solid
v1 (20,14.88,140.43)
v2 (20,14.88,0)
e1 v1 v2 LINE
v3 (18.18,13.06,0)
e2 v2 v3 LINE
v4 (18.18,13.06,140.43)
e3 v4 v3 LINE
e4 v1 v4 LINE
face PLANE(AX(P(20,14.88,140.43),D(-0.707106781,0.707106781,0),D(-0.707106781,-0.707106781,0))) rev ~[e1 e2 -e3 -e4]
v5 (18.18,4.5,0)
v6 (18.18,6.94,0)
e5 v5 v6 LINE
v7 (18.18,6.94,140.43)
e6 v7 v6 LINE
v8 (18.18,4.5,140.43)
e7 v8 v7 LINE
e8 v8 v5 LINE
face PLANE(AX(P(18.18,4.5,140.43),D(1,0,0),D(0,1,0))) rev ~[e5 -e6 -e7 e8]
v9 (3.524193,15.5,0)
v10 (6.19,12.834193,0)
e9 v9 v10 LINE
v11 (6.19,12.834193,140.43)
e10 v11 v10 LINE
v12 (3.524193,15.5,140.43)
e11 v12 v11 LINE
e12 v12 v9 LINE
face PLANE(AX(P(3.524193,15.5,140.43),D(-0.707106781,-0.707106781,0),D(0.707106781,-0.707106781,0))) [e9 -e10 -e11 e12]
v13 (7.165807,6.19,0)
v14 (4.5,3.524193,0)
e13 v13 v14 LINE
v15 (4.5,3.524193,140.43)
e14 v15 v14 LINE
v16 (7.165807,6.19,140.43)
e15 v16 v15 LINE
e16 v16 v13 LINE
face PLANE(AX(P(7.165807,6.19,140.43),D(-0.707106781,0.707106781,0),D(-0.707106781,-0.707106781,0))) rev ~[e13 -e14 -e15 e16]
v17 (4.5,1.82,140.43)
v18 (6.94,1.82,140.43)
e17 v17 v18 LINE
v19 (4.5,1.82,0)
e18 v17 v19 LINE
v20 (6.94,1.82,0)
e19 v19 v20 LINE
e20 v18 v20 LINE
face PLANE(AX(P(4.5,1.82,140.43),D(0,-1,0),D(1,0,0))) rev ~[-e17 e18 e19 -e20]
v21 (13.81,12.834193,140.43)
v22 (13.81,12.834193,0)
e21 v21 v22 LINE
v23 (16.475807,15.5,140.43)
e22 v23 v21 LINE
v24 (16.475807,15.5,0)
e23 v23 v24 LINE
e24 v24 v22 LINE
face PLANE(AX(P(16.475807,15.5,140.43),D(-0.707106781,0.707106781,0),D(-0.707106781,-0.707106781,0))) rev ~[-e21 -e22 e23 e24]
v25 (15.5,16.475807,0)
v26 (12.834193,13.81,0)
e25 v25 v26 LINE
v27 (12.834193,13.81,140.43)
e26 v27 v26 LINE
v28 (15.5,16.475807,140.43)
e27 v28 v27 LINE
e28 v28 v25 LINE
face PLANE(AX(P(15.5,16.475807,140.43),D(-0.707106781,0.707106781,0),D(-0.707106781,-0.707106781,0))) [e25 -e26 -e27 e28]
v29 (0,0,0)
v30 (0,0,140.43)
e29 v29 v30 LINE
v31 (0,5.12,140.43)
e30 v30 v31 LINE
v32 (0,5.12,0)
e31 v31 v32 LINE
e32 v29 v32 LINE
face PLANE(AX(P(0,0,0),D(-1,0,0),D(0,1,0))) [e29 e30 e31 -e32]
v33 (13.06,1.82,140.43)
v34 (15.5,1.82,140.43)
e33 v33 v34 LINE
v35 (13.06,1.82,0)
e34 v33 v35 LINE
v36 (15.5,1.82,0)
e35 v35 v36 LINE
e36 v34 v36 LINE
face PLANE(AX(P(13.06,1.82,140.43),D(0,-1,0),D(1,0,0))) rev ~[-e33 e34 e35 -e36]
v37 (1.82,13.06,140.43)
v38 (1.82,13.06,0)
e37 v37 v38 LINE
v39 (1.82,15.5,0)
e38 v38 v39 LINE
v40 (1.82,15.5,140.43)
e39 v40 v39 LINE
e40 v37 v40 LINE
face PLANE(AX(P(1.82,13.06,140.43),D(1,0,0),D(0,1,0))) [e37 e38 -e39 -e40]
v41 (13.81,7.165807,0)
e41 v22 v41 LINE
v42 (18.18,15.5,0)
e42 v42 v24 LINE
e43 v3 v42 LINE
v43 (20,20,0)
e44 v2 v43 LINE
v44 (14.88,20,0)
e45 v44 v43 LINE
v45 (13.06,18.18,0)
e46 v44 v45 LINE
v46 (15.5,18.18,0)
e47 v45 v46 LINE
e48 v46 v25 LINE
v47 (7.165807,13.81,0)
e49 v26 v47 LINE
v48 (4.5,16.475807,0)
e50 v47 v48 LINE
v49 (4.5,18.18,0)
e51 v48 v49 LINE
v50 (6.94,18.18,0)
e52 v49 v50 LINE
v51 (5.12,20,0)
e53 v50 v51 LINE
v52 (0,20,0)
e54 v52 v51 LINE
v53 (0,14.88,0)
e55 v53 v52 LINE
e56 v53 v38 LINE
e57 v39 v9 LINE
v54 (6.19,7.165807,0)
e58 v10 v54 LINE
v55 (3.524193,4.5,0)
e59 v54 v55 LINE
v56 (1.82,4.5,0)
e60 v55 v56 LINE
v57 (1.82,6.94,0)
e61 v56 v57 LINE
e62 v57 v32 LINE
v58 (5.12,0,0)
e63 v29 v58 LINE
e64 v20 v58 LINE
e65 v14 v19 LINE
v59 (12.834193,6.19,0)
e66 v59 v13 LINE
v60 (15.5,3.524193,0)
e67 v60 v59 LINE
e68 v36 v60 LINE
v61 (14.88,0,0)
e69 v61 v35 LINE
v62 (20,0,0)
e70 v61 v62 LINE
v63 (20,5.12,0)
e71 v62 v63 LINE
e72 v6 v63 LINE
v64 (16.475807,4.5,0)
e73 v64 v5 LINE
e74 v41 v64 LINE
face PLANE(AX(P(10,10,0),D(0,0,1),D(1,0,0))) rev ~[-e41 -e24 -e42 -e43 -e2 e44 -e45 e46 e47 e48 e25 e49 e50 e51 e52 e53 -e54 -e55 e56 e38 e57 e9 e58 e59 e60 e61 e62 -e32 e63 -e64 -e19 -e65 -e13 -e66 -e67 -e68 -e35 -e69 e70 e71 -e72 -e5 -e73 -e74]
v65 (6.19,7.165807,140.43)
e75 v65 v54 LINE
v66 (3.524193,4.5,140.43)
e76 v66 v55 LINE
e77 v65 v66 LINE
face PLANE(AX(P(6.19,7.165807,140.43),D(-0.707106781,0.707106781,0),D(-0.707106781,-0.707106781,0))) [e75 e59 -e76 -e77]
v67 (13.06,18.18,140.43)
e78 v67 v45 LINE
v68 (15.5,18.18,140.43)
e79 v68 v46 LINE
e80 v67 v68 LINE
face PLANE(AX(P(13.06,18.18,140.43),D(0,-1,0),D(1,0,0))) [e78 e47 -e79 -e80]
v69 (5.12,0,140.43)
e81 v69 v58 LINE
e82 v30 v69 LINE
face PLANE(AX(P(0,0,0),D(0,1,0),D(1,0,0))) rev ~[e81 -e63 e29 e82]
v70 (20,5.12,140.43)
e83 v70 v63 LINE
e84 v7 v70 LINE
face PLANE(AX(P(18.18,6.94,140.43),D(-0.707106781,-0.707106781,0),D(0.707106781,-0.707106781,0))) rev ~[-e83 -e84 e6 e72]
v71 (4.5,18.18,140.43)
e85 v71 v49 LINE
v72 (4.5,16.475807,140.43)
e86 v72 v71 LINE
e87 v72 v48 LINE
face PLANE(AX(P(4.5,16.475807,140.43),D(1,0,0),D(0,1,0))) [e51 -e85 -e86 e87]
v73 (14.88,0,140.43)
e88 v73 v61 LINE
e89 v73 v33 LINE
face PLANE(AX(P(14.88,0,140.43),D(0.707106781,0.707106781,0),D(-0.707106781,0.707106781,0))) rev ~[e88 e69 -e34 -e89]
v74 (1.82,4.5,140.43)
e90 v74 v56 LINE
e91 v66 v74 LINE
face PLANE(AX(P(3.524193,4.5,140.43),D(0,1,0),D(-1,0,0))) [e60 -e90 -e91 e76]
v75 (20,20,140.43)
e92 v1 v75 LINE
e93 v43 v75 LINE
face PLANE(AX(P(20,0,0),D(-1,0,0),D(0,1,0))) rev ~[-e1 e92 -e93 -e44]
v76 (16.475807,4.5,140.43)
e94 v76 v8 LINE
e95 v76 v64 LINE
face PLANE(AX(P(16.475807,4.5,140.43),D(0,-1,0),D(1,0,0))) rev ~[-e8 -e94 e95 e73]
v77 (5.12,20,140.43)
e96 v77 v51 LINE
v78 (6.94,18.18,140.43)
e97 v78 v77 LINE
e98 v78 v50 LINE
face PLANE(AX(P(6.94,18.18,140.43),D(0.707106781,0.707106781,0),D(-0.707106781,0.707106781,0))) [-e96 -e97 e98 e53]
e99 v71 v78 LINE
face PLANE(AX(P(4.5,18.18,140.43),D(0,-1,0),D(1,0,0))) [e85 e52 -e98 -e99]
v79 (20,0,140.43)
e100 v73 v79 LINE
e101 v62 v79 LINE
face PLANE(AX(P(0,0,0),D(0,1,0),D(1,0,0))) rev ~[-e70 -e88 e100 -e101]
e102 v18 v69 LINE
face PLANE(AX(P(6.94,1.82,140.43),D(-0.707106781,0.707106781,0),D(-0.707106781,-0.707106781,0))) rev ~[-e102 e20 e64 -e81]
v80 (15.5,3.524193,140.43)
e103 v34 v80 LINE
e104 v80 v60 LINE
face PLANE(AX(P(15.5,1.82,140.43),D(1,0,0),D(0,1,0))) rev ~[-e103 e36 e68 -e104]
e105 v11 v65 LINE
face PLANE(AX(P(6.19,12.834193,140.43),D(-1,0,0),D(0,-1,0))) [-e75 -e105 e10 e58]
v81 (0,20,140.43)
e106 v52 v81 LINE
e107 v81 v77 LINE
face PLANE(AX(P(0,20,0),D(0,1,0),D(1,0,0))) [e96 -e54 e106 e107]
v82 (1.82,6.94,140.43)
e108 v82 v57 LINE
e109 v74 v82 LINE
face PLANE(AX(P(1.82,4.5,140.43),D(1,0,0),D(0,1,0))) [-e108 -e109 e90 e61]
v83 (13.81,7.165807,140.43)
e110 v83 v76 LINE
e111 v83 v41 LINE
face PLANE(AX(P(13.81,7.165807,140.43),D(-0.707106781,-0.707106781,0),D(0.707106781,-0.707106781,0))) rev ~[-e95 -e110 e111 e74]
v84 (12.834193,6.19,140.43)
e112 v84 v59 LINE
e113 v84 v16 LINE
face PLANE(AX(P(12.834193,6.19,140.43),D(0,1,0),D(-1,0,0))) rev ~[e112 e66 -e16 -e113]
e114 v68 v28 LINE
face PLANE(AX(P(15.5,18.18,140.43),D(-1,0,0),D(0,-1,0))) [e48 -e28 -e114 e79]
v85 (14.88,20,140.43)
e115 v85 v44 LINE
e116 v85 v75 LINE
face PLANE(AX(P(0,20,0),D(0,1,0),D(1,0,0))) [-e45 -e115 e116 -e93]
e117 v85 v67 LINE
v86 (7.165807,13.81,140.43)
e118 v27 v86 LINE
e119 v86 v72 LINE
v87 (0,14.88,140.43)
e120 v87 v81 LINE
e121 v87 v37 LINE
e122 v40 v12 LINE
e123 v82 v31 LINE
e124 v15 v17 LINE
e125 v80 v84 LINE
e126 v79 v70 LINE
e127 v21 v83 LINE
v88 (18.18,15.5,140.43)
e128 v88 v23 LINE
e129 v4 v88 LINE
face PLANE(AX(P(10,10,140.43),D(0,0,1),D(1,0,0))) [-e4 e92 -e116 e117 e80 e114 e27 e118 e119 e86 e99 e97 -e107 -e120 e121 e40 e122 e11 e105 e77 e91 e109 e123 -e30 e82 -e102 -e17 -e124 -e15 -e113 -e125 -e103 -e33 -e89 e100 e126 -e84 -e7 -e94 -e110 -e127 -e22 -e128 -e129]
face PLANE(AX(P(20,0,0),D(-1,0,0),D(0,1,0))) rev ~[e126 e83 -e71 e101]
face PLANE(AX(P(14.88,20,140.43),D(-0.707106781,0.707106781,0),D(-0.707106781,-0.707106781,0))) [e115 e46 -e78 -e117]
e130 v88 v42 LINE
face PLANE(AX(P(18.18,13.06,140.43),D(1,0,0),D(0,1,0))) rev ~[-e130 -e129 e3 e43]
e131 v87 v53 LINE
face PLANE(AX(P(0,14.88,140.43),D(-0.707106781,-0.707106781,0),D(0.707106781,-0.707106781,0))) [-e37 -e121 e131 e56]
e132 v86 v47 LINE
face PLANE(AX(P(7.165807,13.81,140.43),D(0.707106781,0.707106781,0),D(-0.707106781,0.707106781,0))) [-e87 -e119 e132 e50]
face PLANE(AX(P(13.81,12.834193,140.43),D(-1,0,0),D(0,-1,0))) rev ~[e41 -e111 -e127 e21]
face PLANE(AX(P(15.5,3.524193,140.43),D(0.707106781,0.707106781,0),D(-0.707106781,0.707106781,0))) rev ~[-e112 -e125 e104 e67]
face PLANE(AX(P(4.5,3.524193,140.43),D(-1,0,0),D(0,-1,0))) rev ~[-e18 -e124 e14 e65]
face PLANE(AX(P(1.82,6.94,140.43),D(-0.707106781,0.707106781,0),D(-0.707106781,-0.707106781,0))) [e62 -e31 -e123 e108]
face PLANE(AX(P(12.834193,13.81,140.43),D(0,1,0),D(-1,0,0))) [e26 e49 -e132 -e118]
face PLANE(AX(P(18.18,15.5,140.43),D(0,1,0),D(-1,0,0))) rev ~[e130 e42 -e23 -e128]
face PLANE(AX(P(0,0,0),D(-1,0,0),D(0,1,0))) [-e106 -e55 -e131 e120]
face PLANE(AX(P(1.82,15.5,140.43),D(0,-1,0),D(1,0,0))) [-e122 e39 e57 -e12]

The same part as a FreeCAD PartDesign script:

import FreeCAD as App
import Part
import Sketcher

V = App.Vector


def add_polygon(sketch, points):
    """Adds a closed chain of lines whose ends are joined by coincident constraints."""
    first, n = sketch.GeometryCount, len(points)
    for a, b in zip(points, points[1:] + points[:1]):
        sketch.addGeometry(Part.LineSegment(App.Vector(*a, 0), App.Vector(*b, 0)), False)
    for i in range(n):
        sketch.addConstraint(Sketcher.Constraint("Coincident", first + i, 2, first + (i + 1) % n, 1))

doc = App.newDocument("Part")
body = doc.addObject("PartDesign::Body", "Body")

# Sketch on XY plane
sketch1 = doc.addObject("Sketcher::SketchObject", "Sketch")
body.addObject(sketch1)
sketch1.AttachmentSupport = (doc.XY_Plane, [""])
sketch1.MapMode = "FlatFace"
add_polygon(sketch1, [(0, 20), (0, 0), (20, 0), (20, 20)])  # lines 0-3
sketch1.addConstraint([
    Sketcher.Constraint("Vertical", 0),
    Sketcher.Constraint("Horizontal", 1),
    Sketcher.Constraint("Vertical", 2),
    Sketcher.Constraint("Horizontal", 3),
    Sketcher.Constraint("Coincident", 0, 2, -1, 1),
    Sketcher.Constraint("Equal", 3, 0),
    Sketcher.Constraint("DistanceX", 1, 1, 1, 2, 20.0),
])
pad1 = doc.addObject("PartDesign::Pad", "Pad")
body.addObject(pad1)
pad1.Profile = sketch1
pad1.Length = 140.43

# Sketch on XY plane
sketch2 = doc.addObject("Sketcher::SketchObject", "Sketch001")
body.addObject(sketch2)
sketch2.AttachmentSupport = (doc.XY_Plane, [""])
sketch2.MapMode = "FlatFace"
sketch2.AttachmentOffset = App.Placement(V(0, 0, 140.43), App.Rotation())
add_polygon(sketch2, [(6.9, 18.2), (4.5, 18.2), (4.5, 16.5), (7.2, 13.8), (12.8, 13.8), (15.5, 16.5), (15.5, 18.2), (13.1, 18.2), (14.9, 20), (5.1, 20)])  # lines 0-9
add_polygon(sketch2, [(14.9, 0), (13.1, 1.8), (15.5, 1.8), (15.5, 3.5), (12.8, 6.2), (7.2, 6.2), (4.5, 3.5), (4.5, 1.8), (6.9, 1.8), (5.1, 0)])  # lines 10-19
add_polygon(sketch2, [(1.8, 6.9), (1.8, 4.5), (3.5, 4.5), (6.2, 7.2), (6.2, 12.8), (3.5, 15.5), (1.8, 15.5), (1.8, 13.1), (0, 14.9), (0, 5.1)])  # lines 20-29
add_polygon(sketch2, [(20, 14.9), (18.2, 13.1), (18.2, 15.5), (16.5, 15.5), (13.8, 12.8), (13.8, 7.2), (16.5, 4.5), (18.2, 4.5), (18.2, 6.9), (20, 5.1)])  # lines 30-39
sketch2.addConstraint([
    Sketcher.Constraint("Horizontal", 0),
    Sketcher.Constraint("Vertical", 1),
    Sketcher.Constraint("Horizontal", 3),
    Sketcher.Constraint("Vertical", 5),
    Sketcher.Constraint("Horizontal", 6),
    Sketcher.Constraint("Horizontal", 8),
    Sketcher.Constraint("Horizontal", 11),
    Sketcher.Constraint("Vertical", 12),
    Sketcher.Constraint("Horizontal", 14),
    Sketcher.Constraint("Vertical", 16),
    Sketcher.Constraint("Horizontal", 17),
    Sketcher.Constraint("Horizontal", 19),
    Sketcher.Constraint("Vertical", 20),
    Sketcher.Constraint("Horizontal", 21),
    Sketcher.Constraint("Vertical", 23),
    Sketcher.Constraint("Horizontal", 25),
    Sketcher.Constraint("Vertical", 26),
    Sketcher.Constraint("Vertical", 28),
    Sketcher.Constraint("Vertical", 31),
    Sketcher.Constraint("Horizontal", 32),
    Sketcher.Constraint("Vertical", 34),
    Sketcher.Constraint("Horizontal", 36),
    Sketcher.Constraint("Vertical", 37),
    Sketcher.Constraint("Vertical", 39),
    Sketcher.Constraint("PointOnObject", 18, 2, -1),
    Sketcher.Constraint("PointOnObject", 27, 2, -2),
    Sketcher.Constraint("Perpendicular", 2, 4),
    Sketcher.Constraint("Parallel", 4, 7),
    Sketcher.Constraint("Perpendicular", 7, 9),
    Sketcher.Constraint("Parallel", 9, 10),
    Sketcher.Constraint("Parallel", 10, 13),
    Sketcher.Constraint("Perpendicular", 13, 15),
    Sketcher.Constraint("Parallel", 15, 18),
    Sketcher.Constraint("Parallel", 18, 22),
    Sketcher.Constraint("Perpendicular", 22, 24),
    Sketcher.Constraint("Parallel", 24, 27),
    Sketcher.Constraint("Perpendicular", 27, 29),
    Sketcher.Constraint("Parallel", 29, 30),
    Sketcher.Constraint("Parallel", 30, 33),
    Sketcher.Constraint("Perpendicular", 33, 35),
    Sketcher.Constraint("Parallel", 35, 38),
    Sketcher.Constraint("Horizontal", 1, 2, 4, 2),
    Sketcher.Constraint("Horizontal", 0, 2, 5, 2),
    Sketcher.Constraint("Horizontal", 12, 2, 15, 2),
    Sketcher.Constraint("Horizontal", 11, 2, 16, 2),
    Sketcher.Constraint("Horizontal", 26, 2, 30, 2),
    Sketcher.Constraint("Horizontal", 25, 2, 31, 2),
    Sketcher.Constraint("Horizontal", 23, 2, 33, 2),
    Sketcher.Constraint("Horizontal", 22, 2, 34, 2),
    Sketcher.Constraint("Horizontal", 21, 2, 35, 2),
    Sketcher.Constraint("Horizontal", 29, 2, 37, 2),
    Sketcher.Constraint("Horizontal", 28, 2, 38, 2),
    Sketcher.Constraint("Horizontal", 27, 2, 39, 2),
    Sketcher.Constraint("Vertical", 6, 2, 10, 2),
    Sketcher.Constraint("Vertical", 5, 2, 11, 2),
    Sketcher.Constraint("Vertical", 3, 2, 13, 2),
    Sketcher.Constraint("Vertical", 2, 2, 14, 2),
    Sketcher.Constraint("Vertical", 1, 2, 15, 2),
    Sketcher.Constraint("Vertical", 9, 2, 17, 2),
    Sketcher.Constraint("Vertical", 8, 2, 18, 2),
    Sketcher.Constraint("Vertical", 21, 2, 24, 2),
    Sketcher.Constraint("Vertical", 20, 2, 25, 2),
    Sketcher.Constraint("Equal", 0, 6),
    Sketcher.Constraint("Equal", 25, 32),
    Sketcher.Constraint("Equal", 36, 1),
    Sketcher.Constraint("Equal", 5, 12),
    Sketcher.Constraint("Equal", 17, 20),
    Sketcher.Constraint("Equal", 14, 23),
    Sketcher.Constraint("Equal", 20, 26),
    Sketcher.Constraint("Equal", 19, 28),
    Sketcher.Constraint("Equal", 15, 22),
    Sketcher.Constraint("DistanceY", -1, 1, 7, 2, 20.0),
    Sketcher.Constraint("DistanceX", -1, 1, 38, 2, 20.0),
    Sketcher.Constraint("DistanceX", 1, 2, 4, 2, 11.0),
    Sketcher.Constraint("DistanceX", 0, 2, 0, 1, 2.44),
    Sketcher.Constraint("DistanceX", 8, 2, 8, 1, 9.76),
    Sketcher.Constraint("DistanceX", -1, 1, 0, 2, 4.5),
    Sketcher.Constraint("DistanceY", -1, 1, 20, 2, 4.5),
    Sketcher.Constraint("DistanceY", -1, 1, 2, 2, 13.81),
    Sketcher.Constraint("Distance", 2, 3.770021),
])
pocket1 = doc.addObject("PartDesign::Pocket", "Pocket")
body.addObject(pocket1)
pocket1.Profile = sketch2
pocket1.Type = "ThroughAll"

doc.recompute()
